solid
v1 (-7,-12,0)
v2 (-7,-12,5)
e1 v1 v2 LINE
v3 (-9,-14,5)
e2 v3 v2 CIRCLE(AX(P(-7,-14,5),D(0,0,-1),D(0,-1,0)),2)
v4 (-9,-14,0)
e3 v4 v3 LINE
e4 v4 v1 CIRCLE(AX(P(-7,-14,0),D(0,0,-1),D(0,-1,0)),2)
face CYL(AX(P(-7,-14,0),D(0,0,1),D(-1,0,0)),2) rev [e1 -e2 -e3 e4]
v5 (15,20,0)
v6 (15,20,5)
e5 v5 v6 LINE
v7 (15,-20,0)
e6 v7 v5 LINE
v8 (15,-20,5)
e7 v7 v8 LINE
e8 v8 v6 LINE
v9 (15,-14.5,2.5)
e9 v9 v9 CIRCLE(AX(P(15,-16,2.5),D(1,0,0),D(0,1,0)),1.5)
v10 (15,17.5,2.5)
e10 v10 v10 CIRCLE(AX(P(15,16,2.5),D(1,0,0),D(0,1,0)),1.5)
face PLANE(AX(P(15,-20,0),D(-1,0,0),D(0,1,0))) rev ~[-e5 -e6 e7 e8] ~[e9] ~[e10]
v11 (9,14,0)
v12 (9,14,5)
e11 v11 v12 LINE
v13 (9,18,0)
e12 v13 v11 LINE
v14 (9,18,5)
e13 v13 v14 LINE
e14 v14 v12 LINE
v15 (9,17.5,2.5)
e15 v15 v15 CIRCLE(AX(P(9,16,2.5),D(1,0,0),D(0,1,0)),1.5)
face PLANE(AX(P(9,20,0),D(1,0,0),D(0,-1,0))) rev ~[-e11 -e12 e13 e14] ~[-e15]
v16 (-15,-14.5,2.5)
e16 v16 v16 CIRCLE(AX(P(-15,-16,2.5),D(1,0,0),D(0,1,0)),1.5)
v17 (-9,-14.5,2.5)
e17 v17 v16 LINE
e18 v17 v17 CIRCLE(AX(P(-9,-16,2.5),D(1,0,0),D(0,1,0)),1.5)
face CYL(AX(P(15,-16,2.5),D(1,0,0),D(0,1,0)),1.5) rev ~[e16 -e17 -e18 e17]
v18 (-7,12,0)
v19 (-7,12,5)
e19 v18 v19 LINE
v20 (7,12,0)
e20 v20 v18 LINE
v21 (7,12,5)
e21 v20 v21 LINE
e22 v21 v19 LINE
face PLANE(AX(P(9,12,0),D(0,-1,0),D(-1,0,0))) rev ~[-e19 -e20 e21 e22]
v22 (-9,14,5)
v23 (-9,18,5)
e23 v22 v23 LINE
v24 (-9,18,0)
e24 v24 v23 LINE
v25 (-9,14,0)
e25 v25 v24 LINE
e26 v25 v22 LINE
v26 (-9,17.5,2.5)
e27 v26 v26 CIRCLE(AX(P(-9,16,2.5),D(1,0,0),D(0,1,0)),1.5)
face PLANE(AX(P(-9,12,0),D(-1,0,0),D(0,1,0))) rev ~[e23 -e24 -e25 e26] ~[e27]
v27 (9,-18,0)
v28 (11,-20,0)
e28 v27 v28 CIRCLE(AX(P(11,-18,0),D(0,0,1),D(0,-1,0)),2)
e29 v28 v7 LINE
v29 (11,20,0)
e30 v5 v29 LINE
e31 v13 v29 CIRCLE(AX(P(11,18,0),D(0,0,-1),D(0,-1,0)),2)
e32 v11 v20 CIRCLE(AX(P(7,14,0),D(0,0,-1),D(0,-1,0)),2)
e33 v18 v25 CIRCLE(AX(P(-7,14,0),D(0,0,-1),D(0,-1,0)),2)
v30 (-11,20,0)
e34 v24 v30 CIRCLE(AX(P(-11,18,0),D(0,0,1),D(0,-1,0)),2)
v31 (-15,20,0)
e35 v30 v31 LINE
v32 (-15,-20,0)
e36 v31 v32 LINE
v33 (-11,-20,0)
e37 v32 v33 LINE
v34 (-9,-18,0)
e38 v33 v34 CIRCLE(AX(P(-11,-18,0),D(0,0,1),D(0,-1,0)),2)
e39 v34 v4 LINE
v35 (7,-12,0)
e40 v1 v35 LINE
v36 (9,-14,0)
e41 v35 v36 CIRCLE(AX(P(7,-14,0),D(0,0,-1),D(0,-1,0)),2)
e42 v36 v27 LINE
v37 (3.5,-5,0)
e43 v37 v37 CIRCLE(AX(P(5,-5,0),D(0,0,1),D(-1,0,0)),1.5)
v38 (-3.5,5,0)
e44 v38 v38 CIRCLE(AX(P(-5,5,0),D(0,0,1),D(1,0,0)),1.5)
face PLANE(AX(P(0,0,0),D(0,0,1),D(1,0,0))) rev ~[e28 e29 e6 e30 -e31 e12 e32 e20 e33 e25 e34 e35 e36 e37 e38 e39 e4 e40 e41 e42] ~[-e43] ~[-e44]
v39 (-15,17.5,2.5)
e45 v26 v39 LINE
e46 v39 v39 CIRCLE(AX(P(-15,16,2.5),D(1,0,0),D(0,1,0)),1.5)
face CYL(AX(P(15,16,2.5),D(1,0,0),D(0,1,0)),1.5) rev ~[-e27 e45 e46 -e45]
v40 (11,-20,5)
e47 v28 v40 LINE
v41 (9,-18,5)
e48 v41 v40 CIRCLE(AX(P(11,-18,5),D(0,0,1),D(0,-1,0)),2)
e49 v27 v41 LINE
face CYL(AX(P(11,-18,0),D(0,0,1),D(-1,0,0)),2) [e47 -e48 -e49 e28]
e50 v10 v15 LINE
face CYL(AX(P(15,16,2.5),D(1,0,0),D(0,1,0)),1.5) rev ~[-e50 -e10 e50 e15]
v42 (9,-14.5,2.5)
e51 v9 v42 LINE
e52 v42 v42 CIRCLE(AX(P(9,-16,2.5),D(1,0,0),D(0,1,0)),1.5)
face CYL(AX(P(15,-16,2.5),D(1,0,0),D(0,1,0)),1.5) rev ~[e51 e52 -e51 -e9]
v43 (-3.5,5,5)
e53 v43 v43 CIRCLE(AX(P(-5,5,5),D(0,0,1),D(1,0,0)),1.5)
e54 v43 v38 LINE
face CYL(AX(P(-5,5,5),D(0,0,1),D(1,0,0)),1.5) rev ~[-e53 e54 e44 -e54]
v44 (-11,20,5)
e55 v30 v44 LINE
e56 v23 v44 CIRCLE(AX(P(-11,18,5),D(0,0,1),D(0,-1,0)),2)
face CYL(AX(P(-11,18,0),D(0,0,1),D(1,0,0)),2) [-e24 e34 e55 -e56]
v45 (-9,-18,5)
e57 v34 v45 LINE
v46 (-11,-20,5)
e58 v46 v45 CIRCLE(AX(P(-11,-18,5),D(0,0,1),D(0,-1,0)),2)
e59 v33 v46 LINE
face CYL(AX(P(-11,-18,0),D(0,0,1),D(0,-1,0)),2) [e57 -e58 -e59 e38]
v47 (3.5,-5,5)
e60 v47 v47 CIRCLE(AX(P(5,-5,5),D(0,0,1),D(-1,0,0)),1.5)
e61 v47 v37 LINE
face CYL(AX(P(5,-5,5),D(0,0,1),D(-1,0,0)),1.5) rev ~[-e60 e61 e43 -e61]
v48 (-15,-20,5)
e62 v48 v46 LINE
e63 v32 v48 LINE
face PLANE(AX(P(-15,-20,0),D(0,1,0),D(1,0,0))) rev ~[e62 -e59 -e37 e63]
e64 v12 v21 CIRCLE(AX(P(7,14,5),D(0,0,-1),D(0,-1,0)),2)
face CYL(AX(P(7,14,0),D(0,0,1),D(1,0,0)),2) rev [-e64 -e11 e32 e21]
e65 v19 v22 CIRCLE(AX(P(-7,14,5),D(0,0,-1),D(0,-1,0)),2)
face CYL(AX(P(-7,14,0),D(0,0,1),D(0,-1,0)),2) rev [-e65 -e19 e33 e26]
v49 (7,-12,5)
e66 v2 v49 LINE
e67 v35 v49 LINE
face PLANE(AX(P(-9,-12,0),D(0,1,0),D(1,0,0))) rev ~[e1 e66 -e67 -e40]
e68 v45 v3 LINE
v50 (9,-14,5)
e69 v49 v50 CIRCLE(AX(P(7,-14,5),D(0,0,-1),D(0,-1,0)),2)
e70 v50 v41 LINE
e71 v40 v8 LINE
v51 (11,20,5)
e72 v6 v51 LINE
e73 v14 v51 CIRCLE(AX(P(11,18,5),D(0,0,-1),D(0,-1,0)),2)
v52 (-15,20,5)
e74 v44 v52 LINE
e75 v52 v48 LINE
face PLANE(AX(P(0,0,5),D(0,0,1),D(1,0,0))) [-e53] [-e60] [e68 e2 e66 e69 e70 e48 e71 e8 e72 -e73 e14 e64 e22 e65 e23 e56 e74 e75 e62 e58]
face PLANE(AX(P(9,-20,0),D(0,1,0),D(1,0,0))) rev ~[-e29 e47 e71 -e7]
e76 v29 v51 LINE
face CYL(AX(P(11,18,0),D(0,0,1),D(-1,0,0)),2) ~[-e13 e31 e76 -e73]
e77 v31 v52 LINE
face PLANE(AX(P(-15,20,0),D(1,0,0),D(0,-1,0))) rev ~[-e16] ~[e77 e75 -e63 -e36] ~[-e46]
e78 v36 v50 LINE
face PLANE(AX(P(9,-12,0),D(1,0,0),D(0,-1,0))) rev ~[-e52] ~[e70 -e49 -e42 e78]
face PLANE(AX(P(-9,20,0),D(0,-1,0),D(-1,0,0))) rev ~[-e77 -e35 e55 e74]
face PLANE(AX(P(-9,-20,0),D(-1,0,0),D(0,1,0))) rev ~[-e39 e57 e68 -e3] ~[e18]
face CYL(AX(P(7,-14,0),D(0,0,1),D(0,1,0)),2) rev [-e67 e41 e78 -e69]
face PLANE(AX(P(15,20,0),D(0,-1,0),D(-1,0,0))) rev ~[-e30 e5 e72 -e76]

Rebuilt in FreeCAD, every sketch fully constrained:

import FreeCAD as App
import Part
import Sketcher
from FreeCAD import Vector


def edges_at(feature, points):
    """Names of the edges that pass closest to the given points."""
    edges = feature.Shape.Edges
    near = lambda p: min(range(len(edges)), key=lambda i: edges[i].distToShape(Part.Vertex(*p))[0])
    return sorted({f"Edge{near(p) + 1}" for p in points})


def add_polygon(sketch, points):
    """Adds a closed chain of lines whose ends are joined by coincident constraints."""
    first, n = sketch.GeometryCount, len(points)
    for a, b in zip(points, points[1:] + points[:1]):
        sketch.addGeometry(Part.LineSegment(App.Vector(*a, 0), App.Vector(*b, 0)), False)
    for i in range(n):
        sketch.addConstraint(Sketcher.Constraint("Coincident", first + i, 2, first + (i + 1) % n, 1))

doc = App.newDocument("Part")
body = doc.addObject("PartDesign::Body", "Body")

sketch1 = body.newObject("Sketcher::SketchObject", "Sketch")
sketch1.AttachmentSupport = (doc.getObject("XY_Plane"), [""])
sketch1.MapMode = "FlatFace"
add_polygon(sketch1, [(9, 20), (9, 12), (-9, 12), (-9, 20), (-15, 20), (-15, -20), (-9, -20), (-9, -12), (9, -12), (9, -20), (15, -20), (15, 20)])
sketch1.addConstraint(Sketcher.Constraint("Vertical", 0))
sketch1.addConstraint(Sketcher.Constraint("Horizontal", 1))
sketch1.addConstraint(Sketcher.Constraint("Vertical", 2))
sketch1.addConstraint(Sketcher.Constraint("Horizontal", 3))
sketch1.addConstraint(Sketcher.Constraint("Vertical", 4))
sketch1.addConstraint(Sketcher.Constraint("Horizontal", 5))
sketch1.addConstraint(Sketcher.Constraint("Vertical", 6))
sketch1.addConstraint(Sketcher.Constraint("Horizontal", 7))
sketch1.addConstraint(Sketcher.Constraint("Vertical", 8))
sketch1.addConstraint(Sketcher.Constraint("Horizontal", 9))
sketch1.addConstraint(Sketcher.Constraint("Vertical", 10))
sketch1.addConstraint(Sketcher.Constraint("Horizontal", 11))
sketch1.addConstraint(Sketcher.Constraint("Symmetric", 0, 2, 6, 2, -1, 1))
sketch1.addConstraint(Sketcher.Constraint("Symmetric", 2, 2, 8, 2, -1, 1))
sketch1.addConstraint(Sketcher.Constraint("Symmetric", 4, 2, 10, 2, -1, 1))
sketch1.addConstraint(Sketcher.Constraint("Symmetric", 5, 2, 8, 2, -2))
sketch1.addConstraint(Sketcher.Constraint("DistanceX", 1, 2, 1, 1, 18.0))
sketch1.addConstraint(Sketcher.Constraint("DistanceX", 3, 2, 3, 1, 6.0))
sketch1.addConstraint(Sketcher.Constraint("DistanceY", 0, 2, 0, 1, 8.0))
sketch1.addConstraint(Sketcher.Constraint("DistanceY", 4, 2, 4, 1, 40.0))
pad1 = body.newObject("PartDesign::Pad", "Pad")
pad1.Profile = sketch1
pad1.Length = 5
doc.recompute()

fillet = body.newObject("PartDesign::Fillet", "Fillet")
fillet.Base = (pad1, edges_at(pad1, [
    (9, -20, 2.5),
    (9, -12, 2.5),
    (-9, -12, 2.5),
    (-9, -20, 2.5),
    (-9, 20, 2.5),
    (-9, 12, 2.5),
    (9, 12, 2.5),
    (9, 20, 2.5),
]))
fillet.Radius = 2

sketch2 = body.newObject("Sketcher::SketchObject", "Sketch001")
sketch2.AttachmentSupport = (doc.getObject("XY_Plane"), [""])
sketch2.MapMode = "FlatFace"
sketch2.AttachmentOffset = App.Placement(Vector(0, 0, 5), App.Rotation())
sketch2.addGeometry(Part.Circle(Vector(-5, 5, 0), Vector(0, 0, 1), 1.5), False)
sketch2.addGeometry(Part.Circle(Vector(5, -5, 0), Vector(0, 0, 1), 1.5), False)
sketch2.addConstraint(Sketcher.Constraint("Equal", 0, 1))
sketch2.addConstraint(Sketcher.Constraint("Symmetric", 0, 3, 1, 3, -1, 1))
sketch2.addConstraint(Sketcher.Constraint("Diameter", 0, 3.0))
sketch2.addConstraint(Sketcher.Constraint("DistanceX", 0, 3, -1, 1, 5.0))
sketch2.addConstraint(Sketcher.Constraint("DistanceY", -1, 1, 0, 3, 5.0))
pocket1 = body.newObject("PartDesign::Pocket", "Pocket")
pocket1.Profile = sketch2
pocket1.Type = "ThroughAll"

sketch3 = body.newObject("Sketcher::SketchObject", "Sketch002")
sketch3.AttachmentSupport = (doc.getObject("YZ_Plane"), [""])
sketch3.MapMode = "FlatFace"
sketch3.AttachmentOffset = App.Placement(Vector(0, 0, 15), App.Rotation())
sketch3.addGeometry(Part.Circle(Vector(16, 2.5, 0), Vector(0, 0, 1), 1.5), False)
sketch3.addGeometry(Part.Circle(Vector(-16, 2.5, 0), Vector(0, 0, 1), 1.5), False)
sketch3.addConstraint(Sketcher.Constraint("Equal", 0, 1))
sketch3.addConstraint(Sketcher.Constraint("Symmetric", 0, 3, 1, 3, -2))
sketch3.addConstraint(Sketcher.Constraint("Diameter", 0, 3.0))
sketch3.addConstraint(Sketcher.Constraint("DistanceX", -1, 1, 0, 3, 16.0))
sketch3.addConstraint(Sketcher.Constraint("DistanceY", -1, 1, 0, 3, 2.5))
pocket2 = body.newObject("PartDesign::Pocket", "Pocket001")
pocket2.Profile = sketch3
pocket2.Type = "ThroughAll"

doc.recompute()
